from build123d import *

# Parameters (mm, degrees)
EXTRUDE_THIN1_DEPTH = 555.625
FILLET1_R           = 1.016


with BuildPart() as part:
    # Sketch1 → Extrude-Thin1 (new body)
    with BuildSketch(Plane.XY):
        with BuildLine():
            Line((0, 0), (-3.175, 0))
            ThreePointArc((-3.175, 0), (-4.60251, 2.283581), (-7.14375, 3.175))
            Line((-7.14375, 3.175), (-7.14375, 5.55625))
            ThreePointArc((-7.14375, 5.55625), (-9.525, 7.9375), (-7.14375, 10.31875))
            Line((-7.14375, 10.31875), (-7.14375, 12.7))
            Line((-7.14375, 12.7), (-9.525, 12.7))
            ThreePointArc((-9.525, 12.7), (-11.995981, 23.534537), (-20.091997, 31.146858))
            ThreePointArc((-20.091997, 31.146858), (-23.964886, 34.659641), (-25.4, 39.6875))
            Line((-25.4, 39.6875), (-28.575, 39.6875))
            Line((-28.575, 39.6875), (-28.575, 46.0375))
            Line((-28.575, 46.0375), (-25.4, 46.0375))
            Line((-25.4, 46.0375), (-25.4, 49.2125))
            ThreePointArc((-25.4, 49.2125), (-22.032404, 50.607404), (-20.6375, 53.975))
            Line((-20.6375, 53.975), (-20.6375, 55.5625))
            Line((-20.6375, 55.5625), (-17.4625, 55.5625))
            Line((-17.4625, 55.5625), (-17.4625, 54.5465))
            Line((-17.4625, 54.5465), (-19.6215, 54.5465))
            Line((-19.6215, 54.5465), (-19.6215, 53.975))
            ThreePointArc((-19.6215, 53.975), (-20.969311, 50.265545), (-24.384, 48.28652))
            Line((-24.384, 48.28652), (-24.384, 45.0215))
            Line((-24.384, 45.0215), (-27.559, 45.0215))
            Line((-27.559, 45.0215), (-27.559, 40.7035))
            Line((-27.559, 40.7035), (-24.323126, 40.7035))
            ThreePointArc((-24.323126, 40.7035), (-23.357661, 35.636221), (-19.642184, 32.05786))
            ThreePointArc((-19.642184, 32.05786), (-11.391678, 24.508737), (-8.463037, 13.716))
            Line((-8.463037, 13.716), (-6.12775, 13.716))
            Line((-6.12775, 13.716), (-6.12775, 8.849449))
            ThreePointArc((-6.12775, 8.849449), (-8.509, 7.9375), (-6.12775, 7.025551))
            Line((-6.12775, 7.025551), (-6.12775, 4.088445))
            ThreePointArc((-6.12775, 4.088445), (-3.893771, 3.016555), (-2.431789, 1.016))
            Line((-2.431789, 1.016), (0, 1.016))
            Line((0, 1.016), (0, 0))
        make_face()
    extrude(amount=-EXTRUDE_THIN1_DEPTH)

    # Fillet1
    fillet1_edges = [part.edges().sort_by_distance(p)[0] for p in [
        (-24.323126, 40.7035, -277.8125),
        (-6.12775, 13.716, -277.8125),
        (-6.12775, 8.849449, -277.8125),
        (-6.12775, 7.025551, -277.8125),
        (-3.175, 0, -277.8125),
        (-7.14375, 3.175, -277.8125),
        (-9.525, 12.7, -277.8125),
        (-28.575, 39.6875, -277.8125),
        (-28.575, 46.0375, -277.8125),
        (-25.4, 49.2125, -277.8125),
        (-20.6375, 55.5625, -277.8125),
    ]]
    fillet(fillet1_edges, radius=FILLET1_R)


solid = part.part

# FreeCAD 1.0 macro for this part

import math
import FreeCAD as App
import Part
import Sketcher

V = App.Vector
Q = App.Units.Quantity


def edges_at(feature, points):
    """Names of the edges that pass closest to the given points."""
    edges = feature.Shape.Edges
    near = lambda p: min(range(len(edges)), key=lambda i: edges[i].distToShape(Part.Vertex(*p))[0])
    return sorted({f"Edge{near(p) + 1}" for p in points})

doc = App.newDocument("Part")
body = doc.addObject("PartDesign::Body", "Body")

sketch1 = body.newObject("Sketcher::SketchObject", "Sketch")
sketch1.AttachmentSupport = (doc.getObject("XY_Plane"), [""])
sketch1.MapMode = "FlatFace"
sketch1.addGeometry(Part.LineSegment(V(-3.175, 0, 0), V(0, 0, 0)), False)
sketch1.addGeometry(Part.LineSegment(V(0, 0, 0), V(0, 1.016, 0)), False)
sketch1.addGeometry(Part.LineSegment(V(0, 1.016, 0), V(-2.431789, 1.016, 0)), False)
sketch1.addGeometry(Part.ArcOfCircle(Part.Circle(V(-7.14375, -0.892968, 0), V(0, 0, 1), 5.083968), math.radians(22.054466), math.radians(78.472174)), False)
sketch1.addGeometry(Part.LineSegment(V(-6.12775, 4.088445, 0), V(-6.12775, 7.025551, 0)), False)
sketch1.addGeometry(Part.ArcOfCircle(Part.Circle(V(-7.14375, 7.9375, 0), V(0, 0, 1), 1.36525), math.radians(41.910753), math.radians(318.089247)), False)
sketch1.addGeometry(Part.LineSegment(V(-6.12775, 8.849449, 0), V(-6.12775, 13.716, 0)), False)
sketch1.addGeometry(Part.LineSegment(V(-6.12775, 13.716, 0), V(-8.463037, 13.716, 0)), False)
sketch1.addGeometry(Part.ArcOfCircle(Part.Circle(V(-28.525994, 14.065574, 0), V(0, 0, 1), 20.066002), math.radians(-0.998211), math.radians(63.721839)), False)
sketch1.addGeometry(Part.ArcOfCircle(Part.Circle(V(-15.874998, 39.687502, 0), V(0, 0, 1), 8.509002), math.radians(173.142364), math.radians(243.721838)), False)
sketch1.addGeometry(Part.LineSegment(V(-24.323126, 40.7035, 0), V(-27.559, 40.7035, 0)), False)
sketch1.addGeometry(Part.LineSegment(V(-27.559, 40.7035, 0), V(-27.559, 45.0215, 0)), False)
sketch1.addGeometry(Part.LineSegment(V(-27.559, 45.0215, 0), V(-24.384, 45.0215, 0)), False)
sketch1.addGeometry(Part.LineSegment(V(-24.384, 45.0215, 0), V(-24.384, 48.28652, 0)), False)
sketch1.addGeometry(Part.ArcOfCircle(Part.Circle(V(-25.4, 53.975, 0), V(0, 0, 1), 5.7785), math.radians(-79.873377), math.radians(-0.000001)), False)
sketch1.addGeometry(Part.LineSegment(V(-19.6215, 53.975, 0), V(-19.6215, 54.5465, 0)), False)
sketch1.addGeometry(Part.LineSegment(V(-19.6215, 54.5465, 0), V(-17.4625, 54.5465, 0)), False)
sketch1.addGeometry(Part.LineSegment(V(-17.4625, 54.5465, 0), V(-17.4625, 55.5625, 0)), False)
sketch1.addGeometry(Part.LineSegment(V(-17.4625, 55.5625, 0), V(-20.6375, 55.5625, 0)), False)
sketch1.addGeometry(Part.LineSegment(V(-20.6375, 55.5625, 0), V(-20.6375, 53.975, 0)), False)
sketch1.addGeometry(Part.ArcOfCircle(Part.Circle(V(-25.4, 53.975, 0), V(0, 0, 1), 4.7625), math.radians(-89.999998), math.radians(-0.000002)), False)
sketch1.addGeometry(Part.LineSegment(V(-25.4, 49.2125, 0), V(-25.4, 46.0375, 0)), False)
sketch1.addGeometry(Part.LineSegment(V(-25.4, 46.0375, 0), V(-28.575, 46.0375, 0)), False)
sketch1.addGeometry(Part.LineSegment(V(-28.575, 46.0375, 0), V(-28.575, 39.6875, 0)), False)
sketch1.addGeometry(Part.LineSegment(V(-28.575, 39.6875, 0), V(-25.4, 39.6875, 0)), False)
sketch1.addGeometry(Part.ArcOfCircle(Part.Circle(V(-15.874998, 39.687501, 0), V(0, 0, 1), 9.525002), math.radians(-179.999995), math.radians(-116.278161)), False)
sketch1.addGeometry(Part.ArcOfCircle(Part.Circle(V(-28.525991, 14.065576, 0), V(0, 0, 1), 19.049999), math.radians(-4.110703), math.radians(63.721844)), False)
sketch1.addGeometry(Part.LineSegment(V(-9.525, 12.7, 0), V(-7.14375, 12.7, 0)), False)
sketch1.addGeometry(Part.LineSegment(V(-7.14375, 12.7, 0), V(-7.14375, 10.31875, 0)), False)
sketch1.addGeometry(Part.ArcOfCircle(Part.Circle(V(-7.14375, 7.9375, 0), V(0, 0, 1), 2.38125), math.radians(90), math.radians(270)), False)
sketch1.addGeometry(Part.LineSegment(V(-7.14375, 5.55625, 0), V(-7.14375, 3.175, 0)), False)
sketch1.addGeometry(Part.ArcOfCircle(Part.Circle(V(-7.14375, -0.892969, 0), V(0, 0, 1), 4.067969), math.radians(12.680387), math.radians(89.999997)), False)
sketch1.addConstraint(Sketcher.Constraint("Coincident", 0, 2, 1, 1))
sketch1.addConstraint(Sketcher.Constraint("Coincident", 1, 2, 2, 1))
sketch1.addConstraint(Sketcher.Constraint("Coincident", 2, 2, 3, 1))
sketch1.addConstraint(Sketcher.Constraint("Coincident", 3, 2, 4, 1))
sketch1.addConstraint(Sketcher.Constraint("Coincident", 4, 2, 5, 2))
sketch1.addConstraint(Sketcher.Constraint("Coincident", 5, 1, 6, 1))
sketch1.addConstraint(Sketcher.Constraint("Coincident", 6, 2, 7, 1))
sketch1.addConstraint(Sketcher.Constraint("Coincident", 7, 2, 8, 1))
sketch1.addConstraint(Sketcher.Constraint("Tangent", 8, 2, 9, 2))
sketch1.addConstraint(Sketcher.Constraint("Coincident", 9, 1, 10, 1))
sketch1.addConstraint(Sketcher.Constraint("Coincident", 10, 2, 11, 1))
sketch1.addConstraint(Sketcher.Constraint("Coincident", 11, 2, 12, 1))
sketch1.addConstraint(Sketcher.Constraint("Coincident", 12, 2, 13, 1))
sketch1.addConstraint(Sketcher.Constraint("Coincident", 13, 2, 14, 1))
sketch1.addConstraint(Sketcher.Constraint("Tangent", 14, 2, 15, 1))
sketch1.addConstraint(Sketcher.Constraint("Coincident", 15, 2, 16, 1))
sketch1.addConstraint(Sketcher.Constraint("Coincident", 16, 2, 17, 1))
sketch1.addConstraint(Sketcher.Constraint("Coincident", 17, 2, 18, 1))
sketch1.addConstraint(Sketcher.Constraint("Coincident", 18, 2, 19, 1))
sketch1.addConstraint(Sketcher.Constraint("Tangent", 19, 2, 20, 2))
sketch1.addConstraint(Sketcher.Constraint("Coincident", 20, 1, 21, 1))
sketch1.addConstraint(Sketcher.Constraint("Coincident", 21, 2, 22, 1))
sketch1.addConstraint(Sketcher.Constraint("Coincident", 22, 2, 23, 1))
sketch1.addConstraint(Sketcher.Constraint("Coincident", 23, 2, 24, 1))
sketch1.addConstraint(Sketcher.Constraint("Coincident", 24, 2, 25, 1))
sketch1.addConstraint(Sketcher.Constraint("Tangent", 25, 2, 26, 2))
sketch1.addConstraint(Sketcher.Constraint("Coincident", 26, 1, 27, 1))
sketch1.addConstraint(Sketcher.Constraint("Coincident", 27, 2, 28, 1))
sketch1.addConstraint(Sketcher.Constraint("Coincident", 28, 2, 29, 1))
sketch1.addConstraint(Sketcher.Constraint("Coincident", 29, 2, 30, 1))
sketch1.addConstraint(Sketcher.Constraint("Coincident", 30, 2, 31, 2))
sketch1.addConstraint(Sketcher.Constraint("Coincident", 31, 1, 0, 1))
sketch1.addConstraint(Sketcher.Constraint("Horizontal", 0))
sketch1.addConstraint(Sketcher.Constraint("Vertical", 1))
sketch1.addConstraint(Sketcher.Constraint("Horizontal", 2))
sketch1.addConstraint(Sketcher.Constraint("Vertical", 4))
sketch1.addConstraint(Sketcher.Constraint("Vertical", 6))
sketch1.addConstraint(Sketcher.Constraint("Horizontal", 7))
sketch1.addConstraint(Sketcher.Constraint("Horizontal", 10))
sketch1.addConstraint(Sketcher.Constraint("Vertical", 11))
sketch1.addConstraint(Sketcher.Constraint("Horizontal", 12))
sketch1.addConstraint(Sketcher.Constraint("Vertical", 13))
sketch1.addConstraint(Sketcher.Constraint("Vertical", 15))
sketch1.addConstraint(Sketcher.Constraint("Horizontal", 16))
sketch1.addConstraint(Sketcher.Constraint("Vertical", 17))
sketch1.addConstraint(Sketcher.Constraint("Horizontal", 18))
sketch1.addConstraint(Sketcher.Constraint("Vertical", 19))
sketch1.addConstraint(Sketcher.Constraint("Vertical", 21))
sketch1.addConstraint(Sketcher.Constraint("Horizontal", 22))
sketch1.addConstraint(Sketcher.Constraint("Vertical", 23))
sketch1.addConstraint(Sketcher.Constraint("Horizontal", 24))
sketch1.addConstraint(Sketcher.Constraint("Horizontal", 27))
sketch1.addConstraint(Sketcher.Constraint("Vertical", 28))
sketch1.addConstraint(Sketcher.Constraint("Vertical", 30))
sketch1.addConstraint(Sketcher.Constraint("Coincident", 0, 2, -1, 1))
sketch1.addConstraint(Sketcher.Constraint("Coincident", 20, 3, 14, 3))
sketch1.addConstraint(Sketcher.Constraint("Coincident", 25, 3, 9, 3))
sketch1.addConstraint(Sketcher.Constraint("Coincident", 26, 3, 8, 3))
sketch1.addConstraint(Sketcher.Constraint("Coincident", 29, 3, 5, 3))
sketch1.addConstraint(Sketcher.Constraint("Coincident", 31, 3, 3, 3))
sketch1.addConstraint(Sketcher.Constraint("Horizontal", 25, 3, 23, 2))
sketch1.addConstraint(Sketcher.Constraint("Vertical", 3, 3, 5, 3))
sketch1.addConstraint(Sketcher.Constraint("Vertical", 4, 2, 5, 1))
sketch1.addConstraint(Sketcher.Constraint("Vertical", 14, 3, 20, 1))
sketch1.addConstraint(Sketcher.Constraint("Vertical", 21, 2, 24, 2))
sketch1.addConstraint(Sketcher.Constraint("Vertical", 31, 3, 27, 2))
sketch1.addConstraint(Sketcher.Constraint("Vertical", 28, 2, 29, 2))
sketch1.addConstraint(Sketcher.Constraint("Equal", 0, 12))
sketch1.addConstraint(Sketcher.Constraint("Equal", 12, 18))
sketch1.addConstraint(Sketcher.Constraint("Equal", 18, 22))
sketch1.addConstraint(Sketcher.Constraint("Equal", 1, 17))
sketch1.addConstraint(Sketcher.Constraint("Equal", 24, 21))
sketch1.addConstraint(Sketcher.Constraint("Equal", 27, 28))
sketch1.addConstraint(Sketcher.Constraint("Equal", 28, 30))
sketch1.addConstraint(Sketcher.Constraint("Radius", 8, Q("0.7900001 in")))
sketch1.addConstraint(Sketcher.Constraint("Radius", 26, Q("0.75 in")))
sketch1.addConstraint(Sketcher.Constraint("DistanceX", 14, 3, -1, 1, Q("1 in")))
sketch1.addConstraint(Sketcher.Constraint("Radius", 9, Q("0.3350001 in")))
sketch1.addConstraint(Sketcher.Constraint("Radius", 20, Q("0.1875 in")))
sketch1.addConstraint(Sketcher.Constraint("Radius", 29, Q("0.09375 in")))
sketch1.addConstraint(Sketcher.Constraint("DistanceY", 1, 1, 1, 2, Q("0.04 in")))
sketch1.addConstraint(Sketcher.Constraint("DistanceY", 11, 1, 11, 2, Q("0.17 in")))
sketch1.addConstraint(Sketcher.Constraint("DistanceY", 23, 2, 23, 1, Q("0.25 in")))
sketch1.addConstraint(Sketcher.Constraint("DistanceY", -1, 1, 26, 1, Q("0.5 in")))
sketch1.addConstraint(Sketcher.Constraint("Radius", 14, Q("0.2275 in")))
sketch1.addConstraint(Sketcher.Constraint("DistanceX", 0, 1, 0, 2, Q("0.125 in")))
sketch1.addConstraint(Sketcher.Constraint("DistanceX", 27, 1, 27, 2, Q("0.09375 in")))
sketch1.addConstraint(Sketcher.Constraint("DistanceY", 19, 2, 19, 1, Q("0.0625 in")))
sketch1.addConstraint(Sketcher.Constraint("DistanceY", -1, 1, 6, 2, Q("0.54 in")))
sketch1.addConstraint(Sketcher.Constraint("DistanceX", 12, 2, -1, 1, Q("0.96 in")))
sketch1.addConstraint(Sketcher.Constraint("DistanceY", 5, 3, 9, 3, Q("1.2500001 in")))
sketch1.addConstraint(Sketcher.Constraint("DistanceX", 29, 3, 3, 2, Q("0.04 in")))
sketch1.addConstraint(Sketcher.Constraint("DistanceY", 25, 3, 9, 1, Q("0.04 in")))
sketch1.addConstraint(Sketcher.Constraint("DistanceX", 3, 3, -1, 1, Q("0.28125 in")))
sketch1.addConstraint(Sketcher.Constraint("Radius", 3, Q("5.083968 mm")))
sketch1.addConstraint(Sketcher.Constraint("Radius", 5, Q("1.36525 mm")))
pad1 = body.newObject("PartDesign::Pad", "Pad")
pad1.Profile = sketch1
pad1.Length = Q("21.875 in")
pad1.Reversed = True
doc.recompute()

fillet = body.newObject("PartDesign::Fillet", "Fillet")
fillet.Base = (pad1, edges_at(pad1, [
    (-24.323, 40.703, -277.812),
    (-6.128, 13.716, -277.812),
    (-6.128, 8.849, -277.812),
    (-6.128, 7.026, -277.812),
    (-3.175, 0, -277.812),
    (-7.144, 3.175, -277.812),
    (-9.525, 12.7, -277.812),
    (-28.575, 39.688, -277.812),
    (-28.575, 46.038, -277.812),
    (-25.4, 49.212, -277.812),
    (-20.637, 55.562, -277.812),
]))
fillet.Radius = Q("0.04 in")

doc.recompute()
